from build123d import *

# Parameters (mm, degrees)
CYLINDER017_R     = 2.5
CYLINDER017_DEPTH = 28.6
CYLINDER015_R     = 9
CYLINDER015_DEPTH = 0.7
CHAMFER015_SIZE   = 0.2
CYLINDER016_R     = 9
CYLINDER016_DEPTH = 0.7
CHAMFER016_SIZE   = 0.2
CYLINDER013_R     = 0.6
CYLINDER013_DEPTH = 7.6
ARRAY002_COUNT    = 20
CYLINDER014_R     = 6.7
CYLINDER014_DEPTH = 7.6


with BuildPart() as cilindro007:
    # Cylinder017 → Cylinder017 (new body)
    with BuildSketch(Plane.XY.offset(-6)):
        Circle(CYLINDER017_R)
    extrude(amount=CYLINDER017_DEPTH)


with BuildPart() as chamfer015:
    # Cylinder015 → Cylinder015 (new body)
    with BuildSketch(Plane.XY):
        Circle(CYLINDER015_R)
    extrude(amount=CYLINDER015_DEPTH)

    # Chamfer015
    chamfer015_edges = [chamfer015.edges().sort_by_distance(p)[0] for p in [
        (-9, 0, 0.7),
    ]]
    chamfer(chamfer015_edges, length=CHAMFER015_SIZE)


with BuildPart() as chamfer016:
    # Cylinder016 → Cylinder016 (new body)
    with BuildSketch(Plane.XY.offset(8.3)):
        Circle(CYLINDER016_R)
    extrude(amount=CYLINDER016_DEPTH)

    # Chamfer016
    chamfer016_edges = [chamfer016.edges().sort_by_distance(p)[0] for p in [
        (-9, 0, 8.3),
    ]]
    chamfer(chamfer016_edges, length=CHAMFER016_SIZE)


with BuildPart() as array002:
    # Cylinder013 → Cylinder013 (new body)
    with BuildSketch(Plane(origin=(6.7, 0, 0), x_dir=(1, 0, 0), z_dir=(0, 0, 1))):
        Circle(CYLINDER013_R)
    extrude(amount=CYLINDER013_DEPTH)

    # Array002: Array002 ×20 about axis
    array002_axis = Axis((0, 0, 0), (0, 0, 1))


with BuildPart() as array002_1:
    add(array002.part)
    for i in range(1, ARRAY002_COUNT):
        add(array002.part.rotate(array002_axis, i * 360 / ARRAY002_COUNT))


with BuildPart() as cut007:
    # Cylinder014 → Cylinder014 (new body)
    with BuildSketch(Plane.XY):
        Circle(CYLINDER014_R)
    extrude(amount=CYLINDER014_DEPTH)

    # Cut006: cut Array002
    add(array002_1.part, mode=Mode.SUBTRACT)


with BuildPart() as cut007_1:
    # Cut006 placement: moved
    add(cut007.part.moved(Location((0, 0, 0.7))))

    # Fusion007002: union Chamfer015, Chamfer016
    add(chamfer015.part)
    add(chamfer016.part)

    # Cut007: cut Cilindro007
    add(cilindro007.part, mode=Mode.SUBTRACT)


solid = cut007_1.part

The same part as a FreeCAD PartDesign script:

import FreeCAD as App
import Part
import Sketcher

V = App.Vector


def edges_at(feature, points):
    """Names of the edges that pass closest to the given points."""
    edges = feature.Shape.Edges
    near = lambda p: min(range(len(edges)), key=lambda i: edges[i].distToShape(Part.Vertex(*p))[0])
    return sorted({f"Edge{near(p) + 1}" for p in points})

doc = App.newDocument("Part")
body = doc.addObject("PartDesign::Body", "Body")

# Sketch on XY plane
sketch1 = doc.addObject("Sketcher::SketchObject", "Sketch")
body.addObject(sketch1)
sketch1.AttachmentSupport = (doc.XY_Plane, [""])
sketch1.MapMode = "FlatFace"
sketch1.AttachmentOffset = App.Placement(V(0, 0, -6), App.Rotation())
sketch1.addGeometry(Part.Circle(V(0, 0, 0), V(0, 0, 1), 2.5), False)
sketch1.addConstraint([
    Sketcher.Constraint("Coincident", 0, 3, -1, 1),
    Sketcher.Constraint("Diameter", 0, 5.0),
])
pad1 = doc.addObject("PartDesign::Pad", "Pad")
body.addObject(pad1)
pad1.Profile = sketch1
pad1.Length = 28.6
body2 = doc.addObject("PartDesign::Body", "Body001")

# Sketch on XY plane
sketch2 = doc.addObject("Sketcher::SketchObject", "Sketch001")
body2.addObject(sketch2)
sketch2.AttachmentSupport = (doc.getObject("XY_Plane001"), [""])
sketch2.MapMode = "FlatFace"
sketch2.addGeometry(Part.Circle(V(0, 0, 0), V(0, 0, 1), 9), False)
sketch2.addConstraint([
    Sketcher.Constraint("Coincident", 0, 3, -1, 1),
    Sketcher.Constraint("Diameter", 0, 18.0),
])
pad2 = doc.addObject("PartDesign::Pad", "Pad001")
body2.addObject(pad2)
pad2.Profile = sketch2
pad2.Length = 0.7
doc.recompute()

chamfer = doc.addObject("PartDesign::Chamfer", "Chamfer")
body2.addObject(chamfer)
chamfer.Base = (pad2, edges_at(pad2, [(-9, 0, 0.7)]))
chamfer.Size = 0.2
body3 = doc.addObject("PartDesign::Body", "Body002")

# Sketch on XY plane
sketch3 = doc.addObject("Sketcher::SketchObject", "Sketch002")
body3.addObject(sketch3)
sketch3.AttachmentSupport = (doc.getObject("XY_Plane002"), [""])
sketch3.MapMode = "FlatFace"
sketch3.AttachmentOffset = App.Placement(V(0, 0, 8.3), App.Rotation())
sketch3.addGeometry(Part.Circle(V(0, 0, 0), V(0, 0, 1), 9), False)
sketch3.addConstraint([
    Sketcher.Constraint("Coincident", 0, 3, -1, 1),
    Sketcher.Constraint("Diameter", 0, 18.0),
])
pad3 = doc.addObject("PartDesign::Pad", "Pad002")
body3.addObject(pad3)
pad3.Profile = sketch3
pad3.Length = 0.7
doc.recompute()

chamfer2 = doc.addObject("PartDesign::Chamfer", "Chamfer001")
body3.addObject(chamfer2)
chamfer2.Base = (pad3, edges_at(pad3, [(-9, 0, 8.3)]))
chamfer2.Size = 0.2
body4 = doc.addObject("PartDesign::Body", "Body003")

# Sketch on XY plane
sketch4 = doc.addObject("Sketcher::SketchObject", "Sketch003")
body4.addObject(sketch4)
sketch4.AttachmentSupport = (doc.getObject("XY_Plane003"), [""])
sketch4.MapMode = "FlatFace"
sketch4.addGeometry(Part.Circle(V(6.7, 0, 0), V(0, 0, 1), 0.6), False)
sketch4.addConstraint([
    Sketcher.Constraint("PointOnObject", 0, 3, -1),
    Sketcher.Constraint("Diameter", 0, 1.2),
    Sketcher.Constraint("DistanceX", -1, 1, 0, 3, 6.7),
])
pad4 = doc.addObject("PartDesign::Pad", "Pad003")
body4.addObject(pad4)
pad4.Profile = sketch4
pad4.Length = 7.6
body5 = doc.addObject("PartDesign::Body", "Body004")
body5.AllowCompound = True
doc.recompute()

body5.BaseFeature = body4
doc.recompute()

body6 = doc.addObject("PartDesign::Body", "Body005")
body6.BaseFeature = body4
body6.Placement = App.Placement(V(0, 0, 0), App.Rotation(V(0, 0, 1), 18))
boolean = doc.addObject("PartDesign::Boolean", "Boolean")
body5.addObject(boolean)
boolean.Type = "Fuse"
boolean.addObjects([body6])
doc.recompute()

body7 = doc.addObject("PartDesign::Body", "Body006")
body7.BaseFeature = body4
body7.Placement = App.Placement(V(0, 0, 0), App.Rotation(V(0, 0, 1), 36))
boolean2 = doc.addObject("PartDesign::Boolean", "Boolean001")
body5.addObject(boolean2)
boolean2.Type = "Fuse"
boolean2.addObjects([body7])
doc.recompute()

body8 = doc.addObject("PartDesign::Body", "Body007")
body8.BaseFeature = body4
body8.Placement = App.Placement(V(0, 0, 0), App.Rotation(V(0, 0, 1), 54))
boolean3 = doc.addObject("PartDesign::Boolean", "Boolean002")
body5.addObject(boolean3)
boolean3.Type = "Fuse"
boolean3.addObjects([body8])
doc.recompute()

body9 = doc.addObject("PartDesign::Body", "Body008")
body9.BaseFeature = body4
body9.Placement = App.Placement(V(0, 0, 0), App.Rotation(V(0, 0, 1), 72))
boolean4 = doc.addObject("PartDesign::Boolean", "Boolean003")
body5.addObject(boolean4)
boolean4.Type = "Fuse"
boolean4.addObjects([body9])
doc.recompute()

body10 = doc.addObject("PartDesign::Body", "Body009")
body10.BaseFeature = body4
body10.Placement = App.Placement(V(0, 0, 0), App.Rotation(V(0, 0, 1), 90))
boolean5 = doc.addObject("PartDesign::Boolean", "Boolean004")
body5.addObject(boolean5)
boolean5.Type = "Fuse"
boolean5.addObjects([body10])
doc.recompute()

body11 = doc.addObject("PartDesign::Body", "Body010")
body11.BaseFeature = body4
body11.Placement = App.Placement(V(0, 0, 0), App.Rotation(V(0, 0, 1), 108))
boolean6 = doc.addObject("PartDesign::Boolean", "Boolean005")
body5.addObject(boolean6)
boolean6.Type = "Fuse"
boolean6.addObjects([body11])
doc.recompute()

body12 = doc.addObject("PartDesign::Body", "Body011")
body12.BaseFeature = body4
body12.Placement = App.Placement(V(0, 0, 0), App.Rotation(V(0, 0, 1), 126))
boolean7 = doc.addObject("PartDesign::Boolean", "Boolean006")
body5.addObject(boolean7)
boolean7.Type = "Fuse"
boolean7.addObjects([body12])
doc.recompute()

body13 = doc.addObject("PartDesign::Body", "Body012")
body13.BaseFeature = body4
body13.Placement = App.Placement(V(0, 0, 0), App.Rotation(V(0, 0, 1), 144))
boolean8 = doc.addObject("PartDesign::Boolean", "Boolean007")
body5.addObject(boolean8)
boolean8.Type = "Fuse"
boolean8.addObjects([body13])
doc.recompute()

body14 = doc.addObject("PartDesign::Body", "Body013")
body14.BaseFeature = body4
body14.Placement = App.Placement(V(0, 0, 0), App.Rotation(V(0, 0, 1), 162))
boolean9 = doc.addObject("PartDesign::Boolean", "Boolean008")
body5.addObject(boolean9)
boolean9.Type = "Fuse"
boolean9.addObjects([body14])
doc.recompute()

body15 = doc.addObject("PartDesign::Body", "Body014")
body15.BaseFeature = body4
body15.Placement = App.Placement(V(0, 0, 0), App.Rotation(V(0, 0, 1), 180))
boolean10 = doc.addObject("PartDesign::Boolean", "Boolean009")
body5.addObject(boolean10)
boolean10.Type = "Fuse"
boolean10.addObjects([body15])
doc.recompute()

body16 = doc.addObject("PartDesign::Body", "Body015")
body16.BaseFeature = body4
body16.Placement = App.Placement(V(0, 0, 0), App.Rotation(V(0, 0, 1), 198))
boolean11 = doc.addObject("PartDesign::Boolean", "Boolean010")
body5.addObject(boolean11)
boolean11.Type = "Fuse"
boolean11.addObjects([body16])
doc.recompute()

body17 = doc.addObject("PartDesign::Body", "Body016")
body17.BaseFeature = body4
body17.Placement = App.Placement(V(0, 0, 0), App.Rotation(V(0, 0, 1), 216))
boolean12 = doc.addObject("PartDesign::Boolean", "Boolean011")
body5.addObject(boolean12)
boolean12.Type = "Fuse"
boolean12.addObjects([body17])
doc.recompute()

body18 = doc.addObject("PartDesign::Body", "Body017")
body18.BaseFeature = body4
body18.Placement = App.Placement(V(0, 0, 0), App.Rotation(V(0, 0, 1), 234))
boolean13 = doc.addObject("PartDesign::Boolean", "Boolean012")
body5.addObject(boolean13)
boolean13.Type = "Fuse"
boolean13.addObjects([body18])
doc.recompute()

body19 = doc.addObject("PartDesign::Body", "Body018")
body19.BaseFeature = body4
body19.Placement = App.Placement(V(0, 0, 0), App.Rotation(V(0, 0, 1), 252))
boolean14 = doc.addObject("PartDesign::Boolean", "Boolean013")
body5.addObject(boolean14)
boolean14.Type = "Fuse"
boolean14.addObjects([body19])
doc.recompute()

body20 = doc.addObject("PartDesign::Body", "Body019")
body20.BaseFeature = body4
body20.Placement = App.Placement(V(0, 0, 0), App.Rotation(V(0, 0, 1), 270))
boolean15 = doc.addObject("PartDesign::Boolean", "Boolean014")
body5.addObject(boolean15)
boolean15.Type = "Fuse"
boolean15.addObjects([body20])
doc.recompute()

body21 = doc.addObject("PartDesign::Body", "Body020")
body21.BaseFeature = body4
body21.Placement = App.Placement(V(0, 0, 0), App.Rotation(V(0, 0, 1), 288))
boolean16 = doc.addObject("PartDesign::Boolean", "Boolean015")
body5.addObject(boolean16)
boolean16.Type = "Fuse"
boolean16.addObjects([body21])
doc.recompute()

body22 = doc.addObject("PartDesign::Body", "Body021")
body22.BaseFeature = body4
body22.Placement = App.Placement(V(0, 0, 0), App.Rotation(V(0, 0, 1), 306))
boolean17 = doc.addObject("PartDesign::Boolean", "Boolean016")
body5.addObject(boolean17)
boolean17.Type = "Fuse"
boolean17.addObjects([body22])
doc.recompute()

body23 = doc.addObject("PartDesign::Body", "Body022")
body23.BaseFeature = body4
body23.Placement = App.Placement(V(0, 0, 0), App.Rotation(V(0, 0, 1), 324))
boolean18 = doc.addObject("PartDesign::Boolean", "Boolean017")
body5.addObject(boolean18)
boolean18.Type = "Fuse"
boolean18.addObjects([body23])
doc.recompute()

body4.Placement = App.Placement(V(0, 0, 0), App.Rotation(V(0, 0, 1), 342))
boolean19 = doc.addObject("PartDesign::Boolean", "Boolean018")
body5.addObject(boolean19)
boolean19.Type = "Fuse"
boolean19.addObjects([body4])
body24 = doc.addObject("PartDesign::Body", "Body023")

# Sketch on XY plane
sketch5 = doc.addObject("Sketcher::SketchObject", "Sketch004")
body24.addObject(sketch5)
sketch5.AttachmentSupport = (doc.getObject("XY_Plane023"), [""])
sketch5.MapMode = "FlatFace"
sketch5.addGeometry(Part.Circle(V(0, 0, 0), V(0, 0, 1), 7), False)
sketch5.addConstraint([
    Sketcher.Constraint("Coincident", 0, 3, -1, 1),
    Sketcher.Constraint("Diameter", 0, 13.4),
])
pad5 = doc.addObject("PartDesign::Pad", "Pad004")
body24.addObject(pad5)
pad5.Profile = sketch5
pad5.Length = 7.6
doc.recompute()

boolean20 = doc.addObject("PartDesign::Boolean", "Boolean019")
body24.addObject(boolean20)
boolean20.Type = "Cut"
boolean20.addObjects([body5])
body25 = doc.addObject("PartDesign::Body", "Body024")
doc.recompute()

body24.Placement = App.Placement(V(0, 0, 0.7), App.Rotation(V(0, 0, 1), 0))
boolean21 = doc.addObject("PartDesign::Boolean", "Boolean020")
body25.addObject(boolean21)
boolean21.Type = "Fuse"
boolean21.addObjects([body24])
doc.recompute()

boolean22 = doc.addObject("PartDesign::Boolean", "Boolean021")
body25.addObject(boolean22)
boolean22.Type = "Fuse"
boolean22.addObjects([body2])
doc.recompute()

boolean23 = doc.addObject("PartDesign::Boolean", "Boolean022")
body25.addObject(boolean23)
boolean23.Type = "Fuse"
boolean23.addObjects([body3])
doc.recompute()

boolean24 = doc.addObject("PartDesign::Boolean", "Boolean023")
body25.addObject(boolean24)
boolean24.Type = "Cut"
boolean24.addObjects([body])

doc.recompute()
